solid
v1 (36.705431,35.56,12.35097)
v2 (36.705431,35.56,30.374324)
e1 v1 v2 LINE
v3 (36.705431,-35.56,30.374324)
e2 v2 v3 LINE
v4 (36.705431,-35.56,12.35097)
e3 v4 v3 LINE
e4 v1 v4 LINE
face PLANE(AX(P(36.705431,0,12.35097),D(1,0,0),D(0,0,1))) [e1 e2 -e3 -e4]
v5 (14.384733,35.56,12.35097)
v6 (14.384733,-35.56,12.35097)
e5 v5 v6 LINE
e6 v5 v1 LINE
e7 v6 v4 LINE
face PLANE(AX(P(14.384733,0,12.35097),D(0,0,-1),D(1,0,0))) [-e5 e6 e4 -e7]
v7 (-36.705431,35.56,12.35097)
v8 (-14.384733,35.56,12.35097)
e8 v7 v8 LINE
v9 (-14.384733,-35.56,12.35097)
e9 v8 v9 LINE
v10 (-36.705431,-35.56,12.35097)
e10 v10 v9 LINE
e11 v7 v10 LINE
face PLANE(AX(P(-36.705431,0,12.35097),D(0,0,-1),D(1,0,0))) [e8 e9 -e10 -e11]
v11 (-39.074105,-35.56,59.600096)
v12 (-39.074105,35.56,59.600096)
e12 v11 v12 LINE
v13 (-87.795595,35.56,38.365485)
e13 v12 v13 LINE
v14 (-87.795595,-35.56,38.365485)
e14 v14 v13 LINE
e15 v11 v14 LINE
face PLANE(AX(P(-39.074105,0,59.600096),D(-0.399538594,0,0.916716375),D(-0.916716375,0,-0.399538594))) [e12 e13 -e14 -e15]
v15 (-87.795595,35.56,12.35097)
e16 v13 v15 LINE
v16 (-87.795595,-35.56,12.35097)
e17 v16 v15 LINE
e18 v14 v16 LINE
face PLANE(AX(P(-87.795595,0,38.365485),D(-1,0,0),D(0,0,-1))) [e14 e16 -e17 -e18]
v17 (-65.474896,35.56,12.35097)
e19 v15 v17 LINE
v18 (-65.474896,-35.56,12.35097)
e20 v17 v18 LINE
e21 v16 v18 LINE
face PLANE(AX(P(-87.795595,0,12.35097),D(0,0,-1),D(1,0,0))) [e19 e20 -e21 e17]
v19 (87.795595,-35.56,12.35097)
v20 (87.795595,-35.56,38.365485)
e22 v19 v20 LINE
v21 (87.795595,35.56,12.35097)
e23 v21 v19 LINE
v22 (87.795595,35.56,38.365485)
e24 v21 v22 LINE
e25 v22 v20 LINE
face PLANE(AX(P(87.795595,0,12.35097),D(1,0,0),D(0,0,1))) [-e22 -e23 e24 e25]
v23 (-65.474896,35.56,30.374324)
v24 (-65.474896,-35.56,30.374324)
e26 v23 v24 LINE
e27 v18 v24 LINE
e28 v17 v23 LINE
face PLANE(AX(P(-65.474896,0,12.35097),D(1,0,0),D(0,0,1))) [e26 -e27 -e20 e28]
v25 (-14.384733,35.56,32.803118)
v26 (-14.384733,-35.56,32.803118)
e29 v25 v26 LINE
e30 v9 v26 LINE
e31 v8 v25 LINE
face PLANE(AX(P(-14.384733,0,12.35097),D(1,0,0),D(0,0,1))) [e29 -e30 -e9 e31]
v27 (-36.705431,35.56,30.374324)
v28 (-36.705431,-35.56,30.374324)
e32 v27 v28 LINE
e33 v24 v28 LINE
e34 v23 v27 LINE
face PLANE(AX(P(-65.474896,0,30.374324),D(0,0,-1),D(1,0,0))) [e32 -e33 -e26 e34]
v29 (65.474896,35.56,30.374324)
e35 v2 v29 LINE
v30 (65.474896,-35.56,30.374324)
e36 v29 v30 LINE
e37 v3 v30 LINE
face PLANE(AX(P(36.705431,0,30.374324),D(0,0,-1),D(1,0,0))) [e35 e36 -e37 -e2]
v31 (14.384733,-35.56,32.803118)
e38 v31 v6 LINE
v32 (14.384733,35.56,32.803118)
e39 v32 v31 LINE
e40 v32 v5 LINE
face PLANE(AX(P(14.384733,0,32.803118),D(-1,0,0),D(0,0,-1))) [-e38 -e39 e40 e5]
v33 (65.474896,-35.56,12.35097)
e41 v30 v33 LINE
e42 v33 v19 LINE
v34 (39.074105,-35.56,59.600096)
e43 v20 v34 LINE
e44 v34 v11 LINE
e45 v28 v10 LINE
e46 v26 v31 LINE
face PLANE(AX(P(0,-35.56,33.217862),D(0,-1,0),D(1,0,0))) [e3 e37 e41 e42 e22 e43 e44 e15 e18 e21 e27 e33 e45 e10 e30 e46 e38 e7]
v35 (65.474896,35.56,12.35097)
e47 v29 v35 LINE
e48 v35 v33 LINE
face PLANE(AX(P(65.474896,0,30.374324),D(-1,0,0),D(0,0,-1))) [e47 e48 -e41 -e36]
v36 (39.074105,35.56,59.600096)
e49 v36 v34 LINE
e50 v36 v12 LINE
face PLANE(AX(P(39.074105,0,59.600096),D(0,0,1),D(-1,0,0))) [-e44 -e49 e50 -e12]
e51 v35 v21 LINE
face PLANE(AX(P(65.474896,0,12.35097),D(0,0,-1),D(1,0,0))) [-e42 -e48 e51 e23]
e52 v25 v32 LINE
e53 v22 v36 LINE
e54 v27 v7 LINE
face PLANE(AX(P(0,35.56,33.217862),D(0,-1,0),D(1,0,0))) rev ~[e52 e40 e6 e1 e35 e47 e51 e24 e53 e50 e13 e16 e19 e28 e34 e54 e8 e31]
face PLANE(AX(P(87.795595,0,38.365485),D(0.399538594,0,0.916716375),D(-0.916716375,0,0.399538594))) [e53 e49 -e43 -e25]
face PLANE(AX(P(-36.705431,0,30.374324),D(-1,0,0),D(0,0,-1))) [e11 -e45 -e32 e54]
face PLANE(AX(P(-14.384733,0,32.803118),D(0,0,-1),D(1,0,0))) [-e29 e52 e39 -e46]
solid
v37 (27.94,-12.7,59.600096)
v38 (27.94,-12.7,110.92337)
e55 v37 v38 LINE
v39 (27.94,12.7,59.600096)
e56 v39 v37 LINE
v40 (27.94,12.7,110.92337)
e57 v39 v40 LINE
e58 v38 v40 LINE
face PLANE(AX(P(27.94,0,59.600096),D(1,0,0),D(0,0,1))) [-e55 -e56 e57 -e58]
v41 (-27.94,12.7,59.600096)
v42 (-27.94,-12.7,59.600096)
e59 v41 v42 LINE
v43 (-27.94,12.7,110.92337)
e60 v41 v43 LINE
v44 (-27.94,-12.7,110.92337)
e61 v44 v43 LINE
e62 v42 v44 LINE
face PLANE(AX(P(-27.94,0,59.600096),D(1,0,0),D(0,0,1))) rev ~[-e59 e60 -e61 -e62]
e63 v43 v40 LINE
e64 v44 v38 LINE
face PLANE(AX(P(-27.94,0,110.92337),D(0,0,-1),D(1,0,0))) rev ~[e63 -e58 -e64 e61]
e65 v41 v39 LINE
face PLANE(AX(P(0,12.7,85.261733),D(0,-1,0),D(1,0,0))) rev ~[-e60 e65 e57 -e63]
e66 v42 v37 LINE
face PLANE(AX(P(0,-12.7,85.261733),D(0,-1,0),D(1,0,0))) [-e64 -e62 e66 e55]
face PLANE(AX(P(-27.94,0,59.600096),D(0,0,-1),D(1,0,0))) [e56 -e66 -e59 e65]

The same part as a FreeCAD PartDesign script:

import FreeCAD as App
import Part
import Sketcher

V = App.Vector
Q = App.Units.Quantity


def add_polygon(sketch, points):
    """Adds a closed chain of lines whose ends are joined by coincident constraints."""
    first, n = sketch.GeometryCount, len(points)
    for a, b in zip(points, points[1:] + points[:1]):
        sketch.addGeometry(Part.LineSegment(App.Vector(*a, 0), App.Vector(*b, 0)), False)
    for i in range(n):
        sketch.addConstraint(Sketcher.Constraint("Coincident", first + i, 2, first + (i + 1) % n, 1))

doc = App.newDocument("Part")
body = doc.addObject("PartDesign::Body", "Body")

sketch1 = body.newObject("Sketcher::SketchObject", "Sketch")
sketch1.AttachmentSupport = (doc.getObject("XZ_Plane"), [""])
sketch1.MapMode = "FlatFace"
add_polygon(sketch1, [(-88, 12), (-65, 12), (-65, 30), (-37, 30), (-37, 12), (-14, 12), (-14, 33), (14, 33), (14, 12), (37, 12), (37, 30), (65, 30), (65, 12), (88, 12), (88, 38), (39, 60), (-39, 60), (-88, 38)])
sketch1.addConstraint(Sketcher.Constraint("Horizontal", 0))
sketch1.addConstraint(Sketcher.Constraint("Vertical", 1))
sketch1.addConstraint(Sketcher.Constraint("Horizontal", 2))
sketch1.addConstraint(Sketcher.Constraint("Vertical", 3))
sketch1.addConstraint(Sketcher.Constraint("Horizontal", 4))
sketch1.addConstraint(Sketcher.Constraint("Vertical", 5))
sketch1.addConstraint(Sketcher.Constraint("Horizontal", 6))
sketch1.addConstraint(Sketcher.Constraint("Vertical", 7))
sketch1.addConstraint(Sketcher.Constraint("Horizontal", 8))
sketch1.addConstraint(Sketcher.Constraint("Vertical", 9))
sketch1.addConstraint(Sketcher.Constraint("Horizontal", 10))
sketch1.addConstraint(Sketcher.Constraint("Vertical", 11))
sketch1.addConstraint(Sketcher.Constraint("Horizontal", 12))
sketch1.addConstraint(Sketcher.Constraint("Vertical", 13))
sketch1.addConstraint(Sketcher.Constraint("Horizontal", 15))
sketch1.addConstraint(Sketcher.Constraint("Vertical", 17))
sketch1.addConstraint(Sketcher.Constraint("Symmetric", 4, 2, 7, 2, -2))
sketch1.addConstraint(Sketcher.Constraint("Symmetric", 2, 2, 9, 2, -2))
sketch1.addConstraint(Sketcher.Constraint("Symmetric", 0, 2, 11, 2, -2))
sketch1.addConstraint(Sketcher.Constraint("Symmetric", 13, 2, 16, 2, -2))
sketch1.addConstraint(Sketcher.Constraint("Horizontal", 0, 2, 3, 2))
sketch1.addConstraint(Sketcher.Constraint("Equal", 0, 4))
sketch1.addConstraint(Sketcher.Constraint("Equal", 2, 6))
sketch1.addConstraint(Sketcher.Constraint("Equal", 14, 16))
sketch1.addConstraint(Sketcher.Constraint("DistanceX", 0, 1, 0, 2, Q("22.320699 mm")))
sketch1.addConstraint(Sketcher.Constraint("DistanceX", 15, 2, 15, 1, Q("78.14821 mm")))
sketch1.addConstraint(Sketcher.Constraint("DistanceX", 2, 1, 2, 2, Q("28.769465 mm")))
sketch1.addConstraint(Sketcher.Constraint("DistanceY", 1, 1, 1, 2, Q("18.023354 mm")))
sketch1.addConstraint(Sketcher.Constraint("DistanceY", 5, 1, 5, 2, Q("20.452148 mm")))
sketch1.addConstraint(Sketcher.Constraint("DistanceY", 13, 1, 13, 2, Q("26.014515 mm")))
sketch1.addConstraint(Sketcher.Constraint("DistanceY", -1, 1, 0, 2, Q("12.35097 mm")))
sketch1.addConstraint(Sketcher.Constraint("DistanceY", 9, 2, 14, 2, Q("29.225772 mm")))
pad1 = body.newObject("PartDesign::Pad", "Pad")
pad1.Profile = sketch1
pad1.Length = Q("2.8 in")
pad1.Midplane = True
body2 = doc.addObject("PartDesign::Body", "Body001")

sketch2 = body2.newObject("Sketcher::SketchObject", "Sketch001")
sketch2.AttachmentSupport = (doc.getObject("XZ_Plane001"), [""])
sketch2.MapMode = "FlatFace"
add_polygon(sketch2, [(-28, 111), (-28, 60), (28, 60), (28, 111)])
sketch2.addConstraint(Sketcher.Constraint("Vertical", 0))
sketch2.addConstraint(Sketcher.Constraint("Horizontal", 1))
sketch2.addConstraint(Sketcher.Constraint("Vertical", 2))
sketch2.addConstraint(Sketcher.Constraint("Horizontal", 3))
sketch2.addConstraint(Sketcher.Constraint("DistanceX", 1, 1, 1, 2, Q("2.2 in")))
sketch2.addConstraint(Sketcher.Constraint("DistanceX", 0, 2, -1, 1, Q("1.1 in")))
sketch2.addConstraint(Sketcher.Constraint("DistanceY", 0, 2, 0, 1, Q("51.323274 mm")))
sketch2.addConstraint(Sketcher.Constraint("DistanceY", -1, 1, 2, 2, Q("110.92337 mm")))
pad2 = body2.newObject("PartDesign::Pad", "Pad001")
pad2.Profile = sketch2
pad2.Length = Q("1 in")
pad2.Midplane = True

doc.recompute()
